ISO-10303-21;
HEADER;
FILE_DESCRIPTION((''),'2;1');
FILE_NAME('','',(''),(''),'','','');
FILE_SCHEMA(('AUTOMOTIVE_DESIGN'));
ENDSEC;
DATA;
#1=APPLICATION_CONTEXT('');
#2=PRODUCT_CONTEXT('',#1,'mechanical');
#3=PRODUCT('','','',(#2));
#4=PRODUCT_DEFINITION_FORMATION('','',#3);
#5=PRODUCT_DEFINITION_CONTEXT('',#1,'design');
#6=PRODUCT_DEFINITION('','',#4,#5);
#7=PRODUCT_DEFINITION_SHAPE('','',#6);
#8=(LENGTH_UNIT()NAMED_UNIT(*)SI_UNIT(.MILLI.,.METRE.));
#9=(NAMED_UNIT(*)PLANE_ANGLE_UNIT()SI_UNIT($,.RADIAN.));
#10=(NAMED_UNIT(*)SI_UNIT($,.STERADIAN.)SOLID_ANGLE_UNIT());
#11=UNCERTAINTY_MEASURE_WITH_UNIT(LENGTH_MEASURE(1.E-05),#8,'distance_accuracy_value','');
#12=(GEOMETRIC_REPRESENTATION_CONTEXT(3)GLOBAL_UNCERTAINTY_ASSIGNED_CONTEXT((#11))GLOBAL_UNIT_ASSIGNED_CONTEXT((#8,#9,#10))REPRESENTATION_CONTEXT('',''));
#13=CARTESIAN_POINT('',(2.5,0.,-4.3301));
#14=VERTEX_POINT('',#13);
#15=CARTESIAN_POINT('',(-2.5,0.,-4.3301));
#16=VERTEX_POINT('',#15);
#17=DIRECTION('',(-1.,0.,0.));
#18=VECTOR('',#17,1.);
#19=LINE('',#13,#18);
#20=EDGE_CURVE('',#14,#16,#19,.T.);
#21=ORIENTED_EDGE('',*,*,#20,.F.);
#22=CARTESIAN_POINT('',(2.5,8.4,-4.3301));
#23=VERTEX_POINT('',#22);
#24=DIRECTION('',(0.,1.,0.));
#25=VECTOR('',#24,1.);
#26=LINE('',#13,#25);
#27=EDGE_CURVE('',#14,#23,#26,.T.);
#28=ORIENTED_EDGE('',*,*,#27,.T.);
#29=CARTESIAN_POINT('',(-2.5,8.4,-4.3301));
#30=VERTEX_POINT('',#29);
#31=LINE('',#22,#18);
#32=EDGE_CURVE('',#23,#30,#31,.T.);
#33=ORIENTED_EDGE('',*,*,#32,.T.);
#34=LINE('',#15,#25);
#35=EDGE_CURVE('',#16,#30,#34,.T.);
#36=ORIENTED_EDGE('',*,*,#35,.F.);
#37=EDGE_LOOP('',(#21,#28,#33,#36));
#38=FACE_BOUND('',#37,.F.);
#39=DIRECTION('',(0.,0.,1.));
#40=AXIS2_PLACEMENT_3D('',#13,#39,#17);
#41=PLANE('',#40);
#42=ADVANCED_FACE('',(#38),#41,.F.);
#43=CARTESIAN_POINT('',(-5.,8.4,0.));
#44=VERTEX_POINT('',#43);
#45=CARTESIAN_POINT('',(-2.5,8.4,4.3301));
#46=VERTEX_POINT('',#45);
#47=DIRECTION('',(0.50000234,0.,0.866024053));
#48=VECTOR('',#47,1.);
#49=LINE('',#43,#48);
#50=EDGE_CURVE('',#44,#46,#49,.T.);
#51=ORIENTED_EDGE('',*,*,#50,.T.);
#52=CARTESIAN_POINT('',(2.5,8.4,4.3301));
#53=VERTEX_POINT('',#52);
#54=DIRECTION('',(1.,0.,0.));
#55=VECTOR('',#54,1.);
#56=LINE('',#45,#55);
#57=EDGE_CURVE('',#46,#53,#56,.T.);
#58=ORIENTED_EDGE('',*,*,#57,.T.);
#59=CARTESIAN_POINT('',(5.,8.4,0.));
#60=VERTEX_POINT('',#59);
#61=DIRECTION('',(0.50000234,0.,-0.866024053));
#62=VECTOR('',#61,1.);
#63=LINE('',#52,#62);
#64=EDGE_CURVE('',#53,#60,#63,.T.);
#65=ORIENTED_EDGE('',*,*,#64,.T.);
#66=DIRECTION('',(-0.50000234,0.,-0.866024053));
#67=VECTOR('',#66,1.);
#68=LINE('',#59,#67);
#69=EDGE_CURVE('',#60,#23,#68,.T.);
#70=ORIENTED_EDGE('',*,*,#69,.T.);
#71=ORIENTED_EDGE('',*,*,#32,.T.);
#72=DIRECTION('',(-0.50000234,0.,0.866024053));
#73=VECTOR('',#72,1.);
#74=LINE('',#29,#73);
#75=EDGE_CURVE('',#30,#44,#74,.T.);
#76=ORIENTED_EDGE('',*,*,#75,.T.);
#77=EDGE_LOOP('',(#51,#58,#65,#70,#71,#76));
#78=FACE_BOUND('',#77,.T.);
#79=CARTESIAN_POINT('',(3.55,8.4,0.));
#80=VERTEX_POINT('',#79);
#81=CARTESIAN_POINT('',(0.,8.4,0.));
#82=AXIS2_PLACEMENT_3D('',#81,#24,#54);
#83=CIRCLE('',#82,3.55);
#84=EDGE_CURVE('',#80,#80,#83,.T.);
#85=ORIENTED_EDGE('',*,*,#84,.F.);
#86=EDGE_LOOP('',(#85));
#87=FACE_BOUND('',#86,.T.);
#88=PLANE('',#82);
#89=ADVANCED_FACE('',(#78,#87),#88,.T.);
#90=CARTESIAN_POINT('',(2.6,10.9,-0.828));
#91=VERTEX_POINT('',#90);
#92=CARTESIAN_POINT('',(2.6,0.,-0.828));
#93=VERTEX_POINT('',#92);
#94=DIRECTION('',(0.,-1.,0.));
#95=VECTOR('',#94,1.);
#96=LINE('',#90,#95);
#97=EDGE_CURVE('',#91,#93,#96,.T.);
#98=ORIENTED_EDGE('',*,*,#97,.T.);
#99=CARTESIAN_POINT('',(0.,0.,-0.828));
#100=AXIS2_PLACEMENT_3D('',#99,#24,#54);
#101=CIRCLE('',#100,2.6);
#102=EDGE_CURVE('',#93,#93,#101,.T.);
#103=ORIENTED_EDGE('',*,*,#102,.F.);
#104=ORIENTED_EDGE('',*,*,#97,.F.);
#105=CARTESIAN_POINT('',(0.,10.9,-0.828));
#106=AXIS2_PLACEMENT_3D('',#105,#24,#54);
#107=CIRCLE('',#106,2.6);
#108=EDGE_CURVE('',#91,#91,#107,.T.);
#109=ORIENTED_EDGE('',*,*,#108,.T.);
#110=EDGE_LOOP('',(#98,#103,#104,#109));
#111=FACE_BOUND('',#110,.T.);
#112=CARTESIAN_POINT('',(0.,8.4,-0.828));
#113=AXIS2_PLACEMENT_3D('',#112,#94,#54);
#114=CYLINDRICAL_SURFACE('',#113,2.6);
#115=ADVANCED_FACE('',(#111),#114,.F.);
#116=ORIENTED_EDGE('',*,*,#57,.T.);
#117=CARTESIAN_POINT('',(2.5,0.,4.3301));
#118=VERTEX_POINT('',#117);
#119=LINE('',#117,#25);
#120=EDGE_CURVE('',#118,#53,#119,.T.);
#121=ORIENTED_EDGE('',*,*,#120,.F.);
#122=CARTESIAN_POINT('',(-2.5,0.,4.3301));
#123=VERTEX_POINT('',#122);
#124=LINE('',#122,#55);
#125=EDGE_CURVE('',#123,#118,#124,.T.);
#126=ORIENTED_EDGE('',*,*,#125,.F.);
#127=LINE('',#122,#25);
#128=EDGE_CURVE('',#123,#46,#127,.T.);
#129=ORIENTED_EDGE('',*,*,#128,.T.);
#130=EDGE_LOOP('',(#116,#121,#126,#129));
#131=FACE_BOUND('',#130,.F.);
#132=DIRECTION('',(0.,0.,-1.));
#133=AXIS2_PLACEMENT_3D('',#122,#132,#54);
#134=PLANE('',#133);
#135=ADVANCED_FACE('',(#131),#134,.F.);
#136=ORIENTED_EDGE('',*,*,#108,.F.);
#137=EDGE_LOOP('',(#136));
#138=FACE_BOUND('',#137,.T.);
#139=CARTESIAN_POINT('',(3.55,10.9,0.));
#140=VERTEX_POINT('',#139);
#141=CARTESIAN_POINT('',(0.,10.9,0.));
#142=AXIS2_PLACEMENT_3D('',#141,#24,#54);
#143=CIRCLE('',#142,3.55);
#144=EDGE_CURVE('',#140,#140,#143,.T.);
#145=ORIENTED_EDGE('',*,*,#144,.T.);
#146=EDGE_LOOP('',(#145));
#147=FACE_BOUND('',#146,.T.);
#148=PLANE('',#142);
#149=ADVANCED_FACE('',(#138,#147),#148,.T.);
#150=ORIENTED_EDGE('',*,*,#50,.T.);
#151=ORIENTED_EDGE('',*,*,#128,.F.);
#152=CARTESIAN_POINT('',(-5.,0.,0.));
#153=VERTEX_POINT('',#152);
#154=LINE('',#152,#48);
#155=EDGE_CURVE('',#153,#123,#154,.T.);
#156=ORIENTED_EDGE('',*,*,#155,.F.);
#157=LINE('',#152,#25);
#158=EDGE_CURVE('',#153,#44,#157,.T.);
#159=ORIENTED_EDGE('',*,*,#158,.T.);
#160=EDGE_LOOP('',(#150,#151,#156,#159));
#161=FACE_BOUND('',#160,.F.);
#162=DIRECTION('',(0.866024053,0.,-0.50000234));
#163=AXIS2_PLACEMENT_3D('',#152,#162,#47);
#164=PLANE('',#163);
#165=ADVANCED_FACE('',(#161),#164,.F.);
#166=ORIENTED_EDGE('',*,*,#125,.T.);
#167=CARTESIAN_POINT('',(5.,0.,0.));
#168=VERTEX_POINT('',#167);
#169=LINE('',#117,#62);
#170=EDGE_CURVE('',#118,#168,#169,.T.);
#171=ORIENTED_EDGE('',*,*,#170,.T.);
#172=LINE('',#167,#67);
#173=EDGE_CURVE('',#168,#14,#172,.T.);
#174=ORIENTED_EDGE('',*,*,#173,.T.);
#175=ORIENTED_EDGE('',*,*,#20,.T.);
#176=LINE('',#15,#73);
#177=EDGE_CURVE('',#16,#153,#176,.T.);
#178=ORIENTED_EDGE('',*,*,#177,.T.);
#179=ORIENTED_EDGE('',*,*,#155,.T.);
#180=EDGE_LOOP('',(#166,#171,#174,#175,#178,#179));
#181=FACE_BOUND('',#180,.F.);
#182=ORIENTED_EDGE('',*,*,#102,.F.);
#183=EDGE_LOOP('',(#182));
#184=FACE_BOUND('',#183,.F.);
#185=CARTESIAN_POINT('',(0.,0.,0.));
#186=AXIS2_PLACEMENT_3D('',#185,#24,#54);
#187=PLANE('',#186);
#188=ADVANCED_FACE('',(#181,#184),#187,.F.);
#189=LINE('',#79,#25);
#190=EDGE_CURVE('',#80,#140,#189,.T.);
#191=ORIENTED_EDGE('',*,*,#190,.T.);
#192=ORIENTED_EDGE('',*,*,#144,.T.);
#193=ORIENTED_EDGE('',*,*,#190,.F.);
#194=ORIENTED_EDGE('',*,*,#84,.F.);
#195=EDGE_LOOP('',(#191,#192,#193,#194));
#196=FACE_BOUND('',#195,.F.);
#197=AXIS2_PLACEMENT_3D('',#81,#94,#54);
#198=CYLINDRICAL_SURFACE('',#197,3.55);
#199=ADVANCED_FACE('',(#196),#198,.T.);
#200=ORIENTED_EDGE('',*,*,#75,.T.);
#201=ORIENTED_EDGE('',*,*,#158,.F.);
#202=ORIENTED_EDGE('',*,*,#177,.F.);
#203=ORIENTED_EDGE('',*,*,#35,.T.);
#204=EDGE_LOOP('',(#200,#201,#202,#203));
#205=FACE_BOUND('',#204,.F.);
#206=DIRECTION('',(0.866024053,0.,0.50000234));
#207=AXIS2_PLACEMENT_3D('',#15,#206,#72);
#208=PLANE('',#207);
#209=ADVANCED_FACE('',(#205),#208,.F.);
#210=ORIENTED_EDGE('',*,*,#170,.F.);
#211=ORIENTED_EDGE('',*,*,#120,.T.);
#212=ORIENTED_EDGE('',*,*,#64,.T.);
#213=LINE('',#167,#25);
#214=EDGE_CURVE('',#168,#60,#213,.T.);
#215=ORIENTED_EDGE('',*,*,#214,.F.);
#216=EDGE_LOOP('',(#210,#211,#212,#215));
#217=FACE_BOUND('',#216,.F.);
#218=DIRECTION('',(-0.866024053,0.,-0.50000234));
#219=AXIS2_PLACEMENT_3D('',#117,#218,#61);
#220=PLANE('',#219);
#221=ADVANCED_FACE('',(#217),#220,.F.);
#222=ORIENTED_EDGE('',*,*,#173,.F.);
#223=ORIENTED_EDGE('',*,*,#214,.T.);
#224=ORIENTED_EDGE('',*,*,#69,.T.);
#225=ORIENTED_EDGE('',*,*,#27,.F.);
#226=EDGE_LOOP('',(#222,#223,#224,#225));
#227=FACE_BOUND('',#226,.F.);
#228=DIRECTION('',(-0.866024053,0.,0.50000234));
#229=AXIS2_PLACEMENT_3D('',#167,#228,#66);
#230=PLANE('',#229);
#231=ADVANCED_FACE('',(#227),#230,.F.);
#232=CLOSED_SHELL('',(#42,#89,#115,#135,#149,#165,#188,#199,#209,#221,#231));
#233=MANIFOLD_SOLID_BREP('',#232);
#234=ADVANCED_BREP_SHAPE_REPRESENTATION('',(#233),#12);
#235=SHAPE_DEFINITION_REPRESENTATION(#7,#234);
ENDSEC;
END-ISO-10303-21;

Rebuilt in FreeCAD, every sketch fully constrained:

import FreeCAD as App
import Part
import Sketcher

V = App.Vector
Q = App.Units.Quantity


def add_polygon(sketch, points):
    """Adds a closed chain of lines whose ends are joined by coincident constraints."""
    first, n = sketch.GeometryCount, len(points)
    for a, b in zip(points, points[1:] + points[:1]):
        sketch.addGeometry(Part.LineSegment(App.Vector(*a, 0), App.Vector(*b, 0)), False)
    for i in range(n):
        sketch.addConstraint(Sketcher.Constraint("Coincident", first + i, 2, first + (i + 1) % n, 1))

doc = App.newDocument("Part")
body = doc.addObject("PartDesign::Body", "Body")

sketch1 = body.newObject("Sketcher::SketchObject", "Sketch")
sketch1.AttachmentSupport = (doc.getObject("XZ_Plane"), [""])
sketch1.MapMode = "FlatFace"
add_polygon(sketch1, [(2.5, 4.3), (5, 0), (2.5, -4.3), (-2.5, -4.3), (-5, 0), (-2.5, 4.3)])
sketch1.addGeometry(Part.Circle(V(0, -0.8, 0), V(0, 0, 1), 2.6), False)
sketch1.addConstraint(Sketcher.Constraint("Horizontal", 2))
sketch1.addConstraint(Sketcher.Constraint("Horizontal", 5))
sketch1.addConstraint(Sketcher.Constraint("Symmetric", 0, 2, 3, 2, -1, 1))
sketch1.addConstraint(Sketcher.Constraint("Symmetric", 1, 2, 4, 2, -1, 1))
sketch1.addConstraint(Sketcher.Constraint("PointOnObject", 6, 3, -2))
sketch1.addConstraint(Sketcher.Constraint("PointOnObject", 0, 2, -1))
sketch1.addConstraint(Sketcher.Constraint("Parallel", 0, 3))
sketch1.addConstraint(Sketcher.Constraint("Vertical", 2, 2, 4, 2))
sketch1.addConstraint(Sketcher.Constraint("Diameter", 6, Q("5.2 mm")))
sketch1.addConstraint(Sketcher.Constraint("DistanceX", 3, 2, 0, 2, Q("10 mm")))
sketch1.addConstraint(Sketcher.Constraint("DistanceX", 2, 2, 2, 1, Q("5 mm")))
sketch1.addConstraint(Sketcher.Constraint("Angle", 0, Q("-59.9998 deg")))
sketch1.addConstraint(Sketcher.Constraint("DistanceY", 6, 3, -1, 1, Q("0.828 mm")))
pad1 = body.newObject("PartDesign::Pad", "Pad")
pad1.Profile = sketch1
pad1.Length = 8.4
pad1.Reversed = True

sketch2 = body.newObject("Sketcher::SketchObject", "Sketch001")
sketch2.AttachmentSupport = (doc.getObject("XZ_Plane"), [""])
sketch2.MapMode = "FlatFace"
sketch2.AttachmentOffset = App.Placement(V(0, 0, -8.4), App.Rotation())
sketch2.addGeometry(Part.Circle(V(0, 0, 0), V(0, 0, 1), 3.5), False)
sketch2.addGeometry(Part.Circle(V(0, -0.8, 0), V(0, 0, 1), 2.6), False)
sketch2.addConstraint(Sketcher.Constraint("Coincident", 0, 3, -1, 1))
sketch2.addConstraint(Sketcher.Constraint("PointOnObject", 1, 3, -2))
sketch2.addConstraint(Sketcher.Constraint("Diameter", 0, Q("7.1 mm")))
sketch2.addConstraint(Sketcher.Constraint("Diameter", 1, Q("5.2 mm")))
sketch2.addConstraint(Sketcher.Constraint("DistanceY", 1, 3, -1, 1, Q("0.828 mm")))
pad2 = body.newObject("PartDesign::Pad", "Pad001")
pad2.Profile = sketch2
pad2.Length = 2.5
pad2.Reversed = True

doc.recompute()
